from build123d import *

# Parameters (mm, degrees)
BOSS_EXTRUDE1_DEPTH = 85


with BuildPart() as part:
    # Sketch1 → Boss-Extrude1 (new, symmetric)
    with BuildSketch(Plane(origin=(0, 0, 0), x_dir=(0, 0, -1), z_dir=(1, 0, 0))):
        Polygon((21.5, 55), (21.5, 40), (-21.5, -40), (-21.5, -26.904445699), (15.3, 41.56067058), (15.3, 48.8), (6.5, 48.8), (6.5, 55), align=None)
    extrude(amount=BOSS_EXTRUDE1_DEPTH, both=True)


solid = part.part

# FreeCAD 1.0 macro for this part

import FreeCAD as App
import Part
import Sketcher
from FreeCAD import Vector
Q = App.Units.Quantity

doc = App.newDocument("Part")
params = doc.addObject("Spreadsheet::Sheet", "Params")
for row, (alias, value) in enumerate([
    ("sketch1_width", "15 mm"),
    ("sketch1_width2", "6.2 mm"),
    ("sketch1_height", "8.8 mm"),
    ("pad1_length", "170 mm"),
], start=1):
    params.set(f"A{row}", alias)
    params.set(f"B{row}", "=" + value)
    params.setAlias(f"B{row}", alias)

body = doc.addObject("PartDesign::Body", "Body")

# Sketch on YZ plane
sketch1 = body.newObject("Sketcher::SketchObject", "Sketch")
sketch1.AttachmentSupport = (doc.getObject("YZ_Plane"), [""])
sketch1.MapMode = "FlatFace"
sketch1.addGeometry([
    Part.LineSegment(Vector(40, -22, 0), Vector(55, -22, 0)),  # 0
    Part.LineSegment(Vector(55, -22, 0), Vector(55, -6, 0)),  # 1
    Part.LineSegment(Vector(55, -6, 0), Vector(49, -6, 0)),  # 2
    Part.LineSegment(Vector(49, -6, 0), Vector(49, -15, 0)),  # 3
    Part.LineSegment(Vector(49, -15, 0), Vector(42, -15, 0)),  # 4
    Part.LineSegment(Vector(42, -15, 0), Vector(-27, 22, 0)),  # 5
    Part.LineSegment(Vector(-27, 22, 0), Vector(-40, 22, 0)),  # 6
    Part.LineSegment(Vector(-40, 22, 0), Vector(40, -22, 0)),  # 7
], False)
sketch1.addConstraint([
    Sketcher.Constraint("Coincident", 0, 2, 1, 1),
    Sketcher.Constraint("Coincident", 1, 2, 2, 1),
    Sketcher.Constraint("Coincident", 2, 2, 3, 1),
    Sketcher.Constraint("Coincident", 3, 2, 4, 1),
    Sketcher.Constraint("Coincident", 4, 2, 5, 1),
    Sketcher.Constraint("Coincident", 5, 2, 6, 1),
    Sketcher.Constraint("Coincident", 6, 2, 7, 1),
    Sketcher.Constraint("Coincident", 7, 2, 0, 1),
    Sketcher.Constraint("Horizontal", 0),
    Sketcher.Constraint("Vertical", 1),
    Sketcher.Constraint("Horizontal", 2),
    Sketcher.Constraint("Vertical", 3),
    Sketcher.Constraint("Horizontal", 4),
    Sketcher.Constraint("Horizontal", 6),
    Sketcher.Constraint("Symmetric", 6, 2, 7, 2, -1, 1),
    Sketcher.Constraint("Parallel", 5, 7),
    Sketcher.Constraint("Equal", 0, 1),
    Sketcher.Constraint("DistanceX", 0, 1, 0, 2, Q("15 mm")),
    Sketcher.Constraint("DistanceX", 2, 2, 2, 1, Q("6.2 mm")),
    Sketcher.Constraint("DistanceY", 3, 2, 3, 1, Q("8.8 mm")),
    Sketcher.Constraint("DistanceX", -1, 1, 0, 2, Q("55 mm")),
    Sketcher.Constraint("DistanceY", 2, 2, 5, 2, Q("28 mm")),
    Sketcher.Constraint("DistanceX", 4, 2, 4, 1, Q("7.239329 mm")),
])
sketch1.setExpression("Constraints[17]", "Params.sketch1_width")
sketch1.setExpression("Constraints[18]", "Params.sketch1_width2")
sketch1.setExpression("Constraints[19]", "Params.sketch1_height")
pad1 = body.newObject("PartDesign::Pad", "Pad")
pad1.Profile = sketch1
pad1.setExpression("Length", "Params.pad1_length")
pad1.Midplane = True

doc.recompute()
